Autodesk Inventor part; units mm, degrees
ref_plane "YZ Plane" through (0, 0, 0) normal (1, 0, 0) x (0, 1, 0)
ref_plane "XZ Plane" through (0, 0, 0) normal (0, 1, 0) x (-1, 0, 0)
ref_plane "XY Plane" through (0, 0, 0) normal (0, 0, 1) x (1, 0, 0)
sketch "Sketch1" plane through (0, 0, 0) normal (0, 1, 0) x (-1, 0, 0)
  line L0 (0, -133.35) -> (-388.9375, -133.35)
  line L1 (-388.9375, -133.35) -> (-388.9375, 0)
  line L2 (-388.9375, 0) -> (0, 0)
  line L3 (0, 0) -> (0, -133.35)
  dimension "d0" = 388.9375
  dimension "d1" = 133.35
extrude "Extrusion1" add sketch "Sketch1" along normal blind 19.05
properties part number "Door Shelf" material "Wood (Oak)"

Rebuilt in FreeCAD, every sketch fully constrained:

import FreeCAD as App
import Part
import Sketcher

V = App.Vector
Q = App.Units.Quantity


def add_polygon(sketch, points):
    """Adds a closed chain of lines whose ends are joined by coincident constraints."""
    first, n = sketch.GeometryCount, len(points)
    for a, b in zip(points, points[1:] + points[:1]):
        sketch.addGeometry(Part.LineSegment(App.Vector(*a, 0), App.Vector(*b, 0)), False)
    for i in range(n):
        sketch.addConstraint(Sketcher.Constraint("Coincident", first + i, 2, first + (i + 1) % n, 1))

doc = App.newDocument("Part")
body = doc.addObject("PartDesign::Body", "Body")

# Sketch on XZ plane
sketch1 = body.newObject("Sketcher::SketchObject", "Sketch")
sketch1.AttachmentSupport = (doc.getObject("XZ_Plane"), [""])
sketch1.MapMode = "FlatFace"
add_polygon(sketch1, [(389, -133), (0, -133), (0, 0), (389, 0)])  # lines 0-3
sketch1.addConstraint([
    Sketcher.Constraint("Horizontal", 0),
    Sketcher.Constraint("Vertical", 1),
    Sketcher.Constraint("Horizontal", 2),
    Sketcher.Constraint("Vertical", 3),
    Sketcher.Constraint("Coincident", 1, 2, -1, 1),
    Sketcher.Constraint("DistanceY", 1, 1, 1, 2, Q("5.25 in")),
    Sketcher.Constraint("DistanceX", 0, 2, 0, 1, Q("15.3125 in")),
])
pad1 = body.newObject("PartDesign::Pad", "Pad")
pad1.Profile = sketch1
pad1.Length = Q("0.75 in")
pad1.Reversed = True

doc.recompute()
